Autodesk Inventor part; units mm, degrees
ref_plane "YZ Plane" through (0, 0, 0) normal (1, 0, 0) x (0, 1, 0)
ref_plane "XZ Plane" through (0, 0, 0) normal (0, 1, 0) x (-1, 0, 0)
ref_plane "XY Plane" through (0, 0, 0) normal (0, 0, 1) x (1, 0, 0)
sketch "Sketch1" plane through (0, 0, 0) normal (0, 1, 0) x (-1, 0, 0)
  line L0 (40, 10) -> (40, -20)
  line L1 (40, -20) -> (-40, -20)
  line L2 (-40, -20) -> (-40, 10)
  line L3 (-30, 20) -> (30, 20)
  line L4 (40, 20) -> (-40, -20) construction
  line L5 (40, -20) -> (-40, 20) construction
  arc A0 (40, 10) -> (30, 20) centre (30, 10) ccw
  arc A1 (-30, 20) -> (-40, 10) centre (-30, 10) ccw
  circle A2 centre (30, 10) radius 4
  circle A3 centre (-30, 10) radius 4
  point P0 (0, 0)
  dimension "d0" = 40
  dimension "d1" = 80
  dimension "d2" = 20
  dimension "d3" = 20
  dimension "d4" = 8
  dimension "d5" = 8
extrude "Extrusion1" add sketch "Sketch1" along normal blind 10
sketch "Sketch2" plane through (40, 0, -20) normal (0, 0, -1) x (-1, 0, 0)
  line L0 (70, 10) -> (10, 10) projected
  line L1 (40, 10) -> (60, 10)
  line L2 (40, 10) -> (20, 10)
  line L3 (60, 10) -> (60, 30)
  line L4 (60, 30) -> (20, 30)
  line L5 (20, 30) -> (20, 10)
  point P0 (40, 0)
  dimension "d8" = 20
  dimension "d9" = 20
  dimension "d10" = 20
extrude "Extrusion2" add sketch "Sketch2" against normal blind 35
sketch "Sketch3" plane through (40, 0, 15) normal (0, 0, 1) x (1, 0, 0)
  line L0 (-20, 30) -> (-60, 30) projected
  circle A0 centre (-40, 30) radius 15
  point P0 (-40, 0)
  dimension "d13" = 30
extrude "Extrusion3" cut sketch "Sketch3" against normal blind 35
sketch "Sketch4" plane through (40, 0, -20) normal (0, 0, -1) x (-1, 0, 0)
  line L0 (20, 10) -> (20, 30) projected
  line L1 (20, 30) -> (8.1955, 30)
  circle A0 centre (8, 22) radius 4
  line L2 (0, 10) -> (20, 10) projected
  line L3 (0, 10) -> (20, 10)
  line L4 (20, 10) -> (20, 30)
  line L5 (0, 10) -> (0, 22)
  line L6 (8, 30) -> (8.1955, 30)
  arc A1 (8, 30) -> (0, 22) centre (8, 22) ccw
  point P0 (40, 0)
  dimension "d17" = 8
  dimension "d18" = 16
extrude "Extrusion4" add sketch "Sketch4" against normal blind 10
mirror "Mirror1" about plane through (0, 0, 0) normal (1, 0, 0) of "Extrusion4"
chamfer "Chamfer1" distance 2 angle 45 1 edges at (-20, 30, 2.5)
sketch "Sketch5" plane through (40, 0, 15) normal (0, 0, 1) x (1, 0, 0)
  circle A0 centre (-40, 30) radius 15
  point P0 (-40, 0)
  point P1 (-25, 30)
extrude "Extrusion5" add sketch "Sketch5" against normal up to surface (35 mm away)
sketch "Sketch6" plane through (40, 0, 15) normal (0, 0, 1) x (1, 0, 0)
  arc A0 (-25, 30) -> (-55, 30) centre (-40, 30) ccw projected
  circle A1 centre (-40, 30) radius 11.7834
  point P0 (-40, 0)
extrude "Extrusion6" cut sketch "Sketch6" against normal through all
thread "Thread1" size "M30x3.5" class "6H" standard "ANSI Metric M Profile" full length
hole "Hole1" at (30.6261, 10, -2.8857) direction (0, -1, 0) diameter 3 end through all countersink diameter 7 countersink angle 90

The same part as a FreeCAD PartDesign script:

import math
import FreeCAD as App
import Part
import Sketcher

V = App.Vector
Q = App.Units.Quantity


def edges_at(feature, points):
    """Names of the edges that pass closest to the given points."""
    edges = feature.Shape.Edges
    near = lambda p: min(range(len(edges)), key=lambda i: edges[i].distToShape(Part.Vertex(*p))[0])
    return sorted({f"Edge{near(p) + 1}" for p in points})

doc = App.newDocument("Part")
body = doc.addObject("PartDesign::Body", "Body")

# Sketch on XZ plane
sketch1 = body.newObject("Sketcher::SketchObject", "Sketch")
sketch1.AttachmentSupport = (doc.getObject("XZ_Plane"), [""])
sketch1.MapMode = "FlatFace"
sketch1.addGeometry([
    Part.LineSegment(V(-40, -20, 0), V(-40, 10, 0)),  # 0
    Part.ArcOfCircle(Part.Circle(V(-30, 10, 0), V(0, 0, 1), 10), math.radians(90), math.radians(180)),  # 1
    Part.LineSegment(V(-30, 20, 0), V(30, 20, 0)),  # 2
    Part.ArcOfCircle(Part.Circle(V(30, 10, 0), V(0, 0, 1), 10), math.radians(0), math.radians(90)),  # 3
    Part.LineSegment(V(40, 10, 0), V(40, -20, 0)),  # 4
    Part.LineSegment(V(40, -20, 0), V(-40, -20, 0)),  # 5
    Part.Circle(V(30, 10, 0), V(0, 0, 1), 4),  # 6
    Part.Circle(V(-30, 10, 0), V(0, 0, 1), 4),  # 7
], False)
sketch1.addConstraint([
    Sketcher.Constraint("Tangent", 0, 2, 1, 2),
    Sketcher.Constraint("Tangent", 1, 1, 2, 1),
    Sketcher.Constraint("Tangent", 2, 2, 3, 2),
    Sketcher.Constraint("Tangent", 3, 1, 4, 1),
    Sketcher.Constraint("Coincident", 4, 2, 5, 1),
    Sketcher.Constraint("Coincident", 5, 2, 0, 1),
    Sketcher.Constraint("Vertical", 0),
    Sketcher.Constraint("Horizontal", 2),
    Sketcher.Constraint("Vertical", 4),
    Sketcher.Constraint("Horizontal", 5),
    Sketcher.Constraint("Coincident", 6, 3, 3, 3),
    Sketcher.Constraint("Coincident", 7, 3, 1, 3),
    Sketcher.Constraint("Equal", 1, 3),
    Sketcher.Constraint("Equal", 6, 7),
    Sketcher.Constraint("Diameter", 6, Q("8 mm")),
    Sketcher.Constraint("Radius", 1, Q("10 mm")),
    Sketcher.Constraint("DistanceX", 5, 2, 5, 1, Q("80 mm")),
    Sketcher.Constraint("DistanceX", 0, 2, -1, 1, Q("40 mm")),
    Sketcher.Constraint("DistanceY", -1, 1, 1, 1, Q("20 mm")),
    Sketcher.Constraint("DistanceY", 4, 2, -1, 1, Q("20 mm")),
])
pad1 = body.newObject("PartDesign::Pad", "Pad")
pad1.Profile = sketch1
pad1.Length = 10
pad1.Reversed = True

# Sketch on XY plane
sketch2 = body.newObject("Sketcher::SketchObject", "Sketch001")
sketch2.AttachmentSupport = (doc.getObject("XY_Plane"), [""])
sketch2.MapMode = "FlatFace"
sketch2.AttachmentOffset = App.Placement(V(0, 0, -20), App.Rotation())
sketch2.addGeometry([
    Part.LineSegment(V(20, 10, 0), V(-20, 10, 0)),
    Part.LineSegment(V(-20, 10, 0), V(-20, 30, 0)),
    Part.LineSegment(V(-20, 30, 0), V(20, 30, 0)),
    Part.LineSegment(V(20, 30, 0), V(20, 10, 0)),
], False)
sketch2.addConstraint([
    Sketcher.Constraint("Coincident", 0, 2, 1, 1),
    Sketcher.Constraint("Coincident", 1, 2, 2, 1),
    Sketcher.Constraint("Coincident", 2, 2, 3, 1),
    Sketcher.Constraint("Coincident", 3, 2, 0, 1),
    Sketcher.Constraint("Horizontal", 0),
    Sketcher.Constraint("Vertical", 1),
    Sketcher.Constraint("Horizontal", 2),
    Sketcher.Constraint("Vertical", 3),
    Sketcher.Constraint("DistanceY", 1, 1, 1, 2, Q("20 mm")),
    Sketcher.Constraint("DistanceX", 0, 2, -1, 1, Q("20 mm")),
    Sketcher.Constraint("DistanceX", -1, 1, 2, 2, Q("20 mm")),
    Sketcher.Constraint("DistanceY", -1, 1, 0, 2, Q("10 mm")),
])
pad2 = body.newObject("PartDesign::Pad", "Pad001")
pad2.Profile = sketch2
pad2.Length = 35

# Sketch on XY plane
sketch3 = body.newObject("Sketcher::SketchObject", "Sketch002")
sketch3.AttachmentSupport = (doc.getObject("XY_Plane"), [""])
sketch3.MapMode = "FlatFace"
sketch3.AttachmentOffset = App.Placement(V(0, 0, 15), App.Rotation())
sketch3.addGeometry(Part.Circle(V(0, 30, 0), V(0, 0, 1), 15), False)
sketch3.addConstraint([
    Sketcher.Constraint("PointOnObject", 0, 3, -2),
    Sketcher.Constraint("Diameter", 0, Q("30 mm")),
    Sketcher.Constraint("DistanceY", -1, 1, 0, 3, Q("30 mm")),
])
pocket1 = body.newObject("PartDesign::Pocket", "Pocket")
pocket1.Profile = sketch3
pocket1.Length = 35

# Sketch on XY plane
sketch4 = body.newObject("Sketcher::SketchObject", "Sketch003")
sketch4.AttachmentSupport = (doc.getObject("XY_Plane"), [""])
sketch4.MapMode = "FlatFace"
sketch4.AttachmentOffset = App.Placement(V(0, 0, -20), App.Rotation())
sketch4.addGeometry([
    Part.LineSegment(V(40, 10, 0), V(20, 10, 0)),  # 0
    Part.LineSegment(V(20, 10, 0), V(20, 30, 0)),  # 1
    Part.LineSegment(V(20, 30, 0), V(32, 30, 0)),  # 2
    Part.ArcOfCircle(Part.Circle(V(32, 22, 0), V(0, 0, 1), 8), math.radians(0), math.radians(90)),  # 3
    Part.LineSegment(V(40, 22, 0), V(40, 10, 0)),  # 4
    Part.Circle(V(32, 22, 0), V(0, 0, 1), 4),  # 5
], False)
sketch4.addConstraint([
    Sketcher.Constraint("Coincident", 0, 2, 1, 1),
    Sketcher.Constraint("Coincident", 1, 2, 2, 1),
    Sketcher.Constraint("Tangent", 2, 2, 3, 2),
    Sketcher.Constraint("Tangent", 3, 1, 4, 1),
    Sketcher.Constraint("Coincident", 4, 2, 0, 1),
    Sketcher.Constraint("Horizontal", 0),
    Sketcher.Constraint("Vertical", 1),
    Sketcher.Constraint("Horizontal", 2),
    Sketcher.Constraint("Vertical", 4),
    Sketcher.Constraint("Coincident", 5, 3, 3, 3),
    Sketcher.Constraint("Equal", 0, 1),
    Sketcher.Constraint("Diameter", 5, Q("8 mm")),
    Sketcher.Constraint("Radius", 3, Q("8 mm")),
    Sketcher.Constraint("DistanceX", 0, 2, 0, 1, Q("20 mm")),
    Sketcher.Constraint("DistanceX", -1, 1, 3, 3, Q("32 mm")),
    Sketcher.Constraint("DistanceY", -1, 1, 3, 3, Q("22 mm")),
])
pad3 = body.newObject("PartDesign::Pad", "Pad002")
pad3.Profile = sketch4
pad3.Length = 10
doc.recompute()

mirrored = body.newObject("PartDesign::Mirrored", "Mirrored")
mirrored.Originals = [pad3]
mirrored.MirrorPlane = (doc.getObject("YZ_Plane"), [""])
body.Tip = mirrored
doc.recompute()

chamfer = body.newObject("PartDesign::Chamfer", "Chamfer")
chamfer.Base = (mirrored, edges_at(mirrored, [(-20, 30, 2.5)]))
chamfer.Size = 2

# Sketch on XY plane
sketch5 = body.newObject("Sketcher::SketchObject", "Sketch004")
sketch5.AttachmentSupport = (doc.getObject("XY_Plane"), [""])
sketch5.MapMode = "FlatFace"
sketch5.AttachmentOffset = App.Placement(V(0, 0, 15), App.Rotation())
sketch5.addGeometry(Part.Circle(V(0, 30, 0), V(0, 0, 1), 15), False)
sketch5.addConstraint([
    Sketcher.Constraint("PointOnObject", 0, 3, -2),
    Sketcher.Constraint("Diameter", 0, Q("30 mm")),
    Sketcher.Constraint("DistanceY", -1, 1, 0, 3, Q("30 mm")),
])
pad4 = body.newObject("PartDesign::Pad", "Pad003")
pad4.Profile = sketch5
pad4.Length = 35
pad4.Reversed = True

# Sketch on XY plane
sketch6 = body.newObject("Sketcher::SketchObject", "Sketch005")
sketch6.AttachmentSupport = (doc.getObject("XY_Plane"), [""])
sketch6.MapMode = "FlatFace"
sketch6.AttachmentOffset = App.Placement(V(0, 0, 15), App.Rotation())
sketch6.addGeometry(Part.Circle(V(0, 30, 0), V(0, 0, 1), 11.7834), False)
sketch6.addConstraint([
    Sketcher.Constraint("PointOnObject", 0, 3, -2),
    Sketcher.Constraint("DistanceY", -1, 1, 0, 3, Q("30 mm")),
    Sketcher.Constraint("Diameter", 0, Q("23.5668 mm")),
])
pocket2 = body.newObject("PartDesign::Pocket", "Pocket001")
pocket2.Profile = sketch6
pocket2.Type = "ThroughAll"

# Sketch on XZ plane
sketch7 = body.newObject("Sketcher::SketchObject", "Sketch006")
sketch7.AttachmentSupport = (doc.getObject("XZ_Plane"), [""])
sketch7.MapMode = "FlatFace"
sketch7.AttachmentOffset = App.Placement(V(0, 0, -10), App.Rotation())
sketch7.addGeometry(Part.Circle(V(30.6261, -2.8857, 0), V(0, 0, 1), 1.5), False)
sketch7.addConstraint([
    Sketcher.Constraint("Diameter", 0, Q("3 mm")),
    Sketcher.Constraint("DistanceX", -1, 1, 0, 3, Q("30.626 mm")),
    Sketcher.Constraint("DistanceY", 0, 3, -1, 1, Q("2.8857 mm")),
])
doc.recompute()
hole = body.newObject("PartDesign::Hole", "Hole")
hole.Profile = sketch7
hole.ThreadType = "None"
hole.Diameter = 3
hole.DepthType = "ThroughAll"
hole.HoleCutType = "Countersink"
hole.HoleCutDiameter = 7
hole.HoleCutCountersinkAngle = 90
hole.Reversed = True

doc.recompute()
